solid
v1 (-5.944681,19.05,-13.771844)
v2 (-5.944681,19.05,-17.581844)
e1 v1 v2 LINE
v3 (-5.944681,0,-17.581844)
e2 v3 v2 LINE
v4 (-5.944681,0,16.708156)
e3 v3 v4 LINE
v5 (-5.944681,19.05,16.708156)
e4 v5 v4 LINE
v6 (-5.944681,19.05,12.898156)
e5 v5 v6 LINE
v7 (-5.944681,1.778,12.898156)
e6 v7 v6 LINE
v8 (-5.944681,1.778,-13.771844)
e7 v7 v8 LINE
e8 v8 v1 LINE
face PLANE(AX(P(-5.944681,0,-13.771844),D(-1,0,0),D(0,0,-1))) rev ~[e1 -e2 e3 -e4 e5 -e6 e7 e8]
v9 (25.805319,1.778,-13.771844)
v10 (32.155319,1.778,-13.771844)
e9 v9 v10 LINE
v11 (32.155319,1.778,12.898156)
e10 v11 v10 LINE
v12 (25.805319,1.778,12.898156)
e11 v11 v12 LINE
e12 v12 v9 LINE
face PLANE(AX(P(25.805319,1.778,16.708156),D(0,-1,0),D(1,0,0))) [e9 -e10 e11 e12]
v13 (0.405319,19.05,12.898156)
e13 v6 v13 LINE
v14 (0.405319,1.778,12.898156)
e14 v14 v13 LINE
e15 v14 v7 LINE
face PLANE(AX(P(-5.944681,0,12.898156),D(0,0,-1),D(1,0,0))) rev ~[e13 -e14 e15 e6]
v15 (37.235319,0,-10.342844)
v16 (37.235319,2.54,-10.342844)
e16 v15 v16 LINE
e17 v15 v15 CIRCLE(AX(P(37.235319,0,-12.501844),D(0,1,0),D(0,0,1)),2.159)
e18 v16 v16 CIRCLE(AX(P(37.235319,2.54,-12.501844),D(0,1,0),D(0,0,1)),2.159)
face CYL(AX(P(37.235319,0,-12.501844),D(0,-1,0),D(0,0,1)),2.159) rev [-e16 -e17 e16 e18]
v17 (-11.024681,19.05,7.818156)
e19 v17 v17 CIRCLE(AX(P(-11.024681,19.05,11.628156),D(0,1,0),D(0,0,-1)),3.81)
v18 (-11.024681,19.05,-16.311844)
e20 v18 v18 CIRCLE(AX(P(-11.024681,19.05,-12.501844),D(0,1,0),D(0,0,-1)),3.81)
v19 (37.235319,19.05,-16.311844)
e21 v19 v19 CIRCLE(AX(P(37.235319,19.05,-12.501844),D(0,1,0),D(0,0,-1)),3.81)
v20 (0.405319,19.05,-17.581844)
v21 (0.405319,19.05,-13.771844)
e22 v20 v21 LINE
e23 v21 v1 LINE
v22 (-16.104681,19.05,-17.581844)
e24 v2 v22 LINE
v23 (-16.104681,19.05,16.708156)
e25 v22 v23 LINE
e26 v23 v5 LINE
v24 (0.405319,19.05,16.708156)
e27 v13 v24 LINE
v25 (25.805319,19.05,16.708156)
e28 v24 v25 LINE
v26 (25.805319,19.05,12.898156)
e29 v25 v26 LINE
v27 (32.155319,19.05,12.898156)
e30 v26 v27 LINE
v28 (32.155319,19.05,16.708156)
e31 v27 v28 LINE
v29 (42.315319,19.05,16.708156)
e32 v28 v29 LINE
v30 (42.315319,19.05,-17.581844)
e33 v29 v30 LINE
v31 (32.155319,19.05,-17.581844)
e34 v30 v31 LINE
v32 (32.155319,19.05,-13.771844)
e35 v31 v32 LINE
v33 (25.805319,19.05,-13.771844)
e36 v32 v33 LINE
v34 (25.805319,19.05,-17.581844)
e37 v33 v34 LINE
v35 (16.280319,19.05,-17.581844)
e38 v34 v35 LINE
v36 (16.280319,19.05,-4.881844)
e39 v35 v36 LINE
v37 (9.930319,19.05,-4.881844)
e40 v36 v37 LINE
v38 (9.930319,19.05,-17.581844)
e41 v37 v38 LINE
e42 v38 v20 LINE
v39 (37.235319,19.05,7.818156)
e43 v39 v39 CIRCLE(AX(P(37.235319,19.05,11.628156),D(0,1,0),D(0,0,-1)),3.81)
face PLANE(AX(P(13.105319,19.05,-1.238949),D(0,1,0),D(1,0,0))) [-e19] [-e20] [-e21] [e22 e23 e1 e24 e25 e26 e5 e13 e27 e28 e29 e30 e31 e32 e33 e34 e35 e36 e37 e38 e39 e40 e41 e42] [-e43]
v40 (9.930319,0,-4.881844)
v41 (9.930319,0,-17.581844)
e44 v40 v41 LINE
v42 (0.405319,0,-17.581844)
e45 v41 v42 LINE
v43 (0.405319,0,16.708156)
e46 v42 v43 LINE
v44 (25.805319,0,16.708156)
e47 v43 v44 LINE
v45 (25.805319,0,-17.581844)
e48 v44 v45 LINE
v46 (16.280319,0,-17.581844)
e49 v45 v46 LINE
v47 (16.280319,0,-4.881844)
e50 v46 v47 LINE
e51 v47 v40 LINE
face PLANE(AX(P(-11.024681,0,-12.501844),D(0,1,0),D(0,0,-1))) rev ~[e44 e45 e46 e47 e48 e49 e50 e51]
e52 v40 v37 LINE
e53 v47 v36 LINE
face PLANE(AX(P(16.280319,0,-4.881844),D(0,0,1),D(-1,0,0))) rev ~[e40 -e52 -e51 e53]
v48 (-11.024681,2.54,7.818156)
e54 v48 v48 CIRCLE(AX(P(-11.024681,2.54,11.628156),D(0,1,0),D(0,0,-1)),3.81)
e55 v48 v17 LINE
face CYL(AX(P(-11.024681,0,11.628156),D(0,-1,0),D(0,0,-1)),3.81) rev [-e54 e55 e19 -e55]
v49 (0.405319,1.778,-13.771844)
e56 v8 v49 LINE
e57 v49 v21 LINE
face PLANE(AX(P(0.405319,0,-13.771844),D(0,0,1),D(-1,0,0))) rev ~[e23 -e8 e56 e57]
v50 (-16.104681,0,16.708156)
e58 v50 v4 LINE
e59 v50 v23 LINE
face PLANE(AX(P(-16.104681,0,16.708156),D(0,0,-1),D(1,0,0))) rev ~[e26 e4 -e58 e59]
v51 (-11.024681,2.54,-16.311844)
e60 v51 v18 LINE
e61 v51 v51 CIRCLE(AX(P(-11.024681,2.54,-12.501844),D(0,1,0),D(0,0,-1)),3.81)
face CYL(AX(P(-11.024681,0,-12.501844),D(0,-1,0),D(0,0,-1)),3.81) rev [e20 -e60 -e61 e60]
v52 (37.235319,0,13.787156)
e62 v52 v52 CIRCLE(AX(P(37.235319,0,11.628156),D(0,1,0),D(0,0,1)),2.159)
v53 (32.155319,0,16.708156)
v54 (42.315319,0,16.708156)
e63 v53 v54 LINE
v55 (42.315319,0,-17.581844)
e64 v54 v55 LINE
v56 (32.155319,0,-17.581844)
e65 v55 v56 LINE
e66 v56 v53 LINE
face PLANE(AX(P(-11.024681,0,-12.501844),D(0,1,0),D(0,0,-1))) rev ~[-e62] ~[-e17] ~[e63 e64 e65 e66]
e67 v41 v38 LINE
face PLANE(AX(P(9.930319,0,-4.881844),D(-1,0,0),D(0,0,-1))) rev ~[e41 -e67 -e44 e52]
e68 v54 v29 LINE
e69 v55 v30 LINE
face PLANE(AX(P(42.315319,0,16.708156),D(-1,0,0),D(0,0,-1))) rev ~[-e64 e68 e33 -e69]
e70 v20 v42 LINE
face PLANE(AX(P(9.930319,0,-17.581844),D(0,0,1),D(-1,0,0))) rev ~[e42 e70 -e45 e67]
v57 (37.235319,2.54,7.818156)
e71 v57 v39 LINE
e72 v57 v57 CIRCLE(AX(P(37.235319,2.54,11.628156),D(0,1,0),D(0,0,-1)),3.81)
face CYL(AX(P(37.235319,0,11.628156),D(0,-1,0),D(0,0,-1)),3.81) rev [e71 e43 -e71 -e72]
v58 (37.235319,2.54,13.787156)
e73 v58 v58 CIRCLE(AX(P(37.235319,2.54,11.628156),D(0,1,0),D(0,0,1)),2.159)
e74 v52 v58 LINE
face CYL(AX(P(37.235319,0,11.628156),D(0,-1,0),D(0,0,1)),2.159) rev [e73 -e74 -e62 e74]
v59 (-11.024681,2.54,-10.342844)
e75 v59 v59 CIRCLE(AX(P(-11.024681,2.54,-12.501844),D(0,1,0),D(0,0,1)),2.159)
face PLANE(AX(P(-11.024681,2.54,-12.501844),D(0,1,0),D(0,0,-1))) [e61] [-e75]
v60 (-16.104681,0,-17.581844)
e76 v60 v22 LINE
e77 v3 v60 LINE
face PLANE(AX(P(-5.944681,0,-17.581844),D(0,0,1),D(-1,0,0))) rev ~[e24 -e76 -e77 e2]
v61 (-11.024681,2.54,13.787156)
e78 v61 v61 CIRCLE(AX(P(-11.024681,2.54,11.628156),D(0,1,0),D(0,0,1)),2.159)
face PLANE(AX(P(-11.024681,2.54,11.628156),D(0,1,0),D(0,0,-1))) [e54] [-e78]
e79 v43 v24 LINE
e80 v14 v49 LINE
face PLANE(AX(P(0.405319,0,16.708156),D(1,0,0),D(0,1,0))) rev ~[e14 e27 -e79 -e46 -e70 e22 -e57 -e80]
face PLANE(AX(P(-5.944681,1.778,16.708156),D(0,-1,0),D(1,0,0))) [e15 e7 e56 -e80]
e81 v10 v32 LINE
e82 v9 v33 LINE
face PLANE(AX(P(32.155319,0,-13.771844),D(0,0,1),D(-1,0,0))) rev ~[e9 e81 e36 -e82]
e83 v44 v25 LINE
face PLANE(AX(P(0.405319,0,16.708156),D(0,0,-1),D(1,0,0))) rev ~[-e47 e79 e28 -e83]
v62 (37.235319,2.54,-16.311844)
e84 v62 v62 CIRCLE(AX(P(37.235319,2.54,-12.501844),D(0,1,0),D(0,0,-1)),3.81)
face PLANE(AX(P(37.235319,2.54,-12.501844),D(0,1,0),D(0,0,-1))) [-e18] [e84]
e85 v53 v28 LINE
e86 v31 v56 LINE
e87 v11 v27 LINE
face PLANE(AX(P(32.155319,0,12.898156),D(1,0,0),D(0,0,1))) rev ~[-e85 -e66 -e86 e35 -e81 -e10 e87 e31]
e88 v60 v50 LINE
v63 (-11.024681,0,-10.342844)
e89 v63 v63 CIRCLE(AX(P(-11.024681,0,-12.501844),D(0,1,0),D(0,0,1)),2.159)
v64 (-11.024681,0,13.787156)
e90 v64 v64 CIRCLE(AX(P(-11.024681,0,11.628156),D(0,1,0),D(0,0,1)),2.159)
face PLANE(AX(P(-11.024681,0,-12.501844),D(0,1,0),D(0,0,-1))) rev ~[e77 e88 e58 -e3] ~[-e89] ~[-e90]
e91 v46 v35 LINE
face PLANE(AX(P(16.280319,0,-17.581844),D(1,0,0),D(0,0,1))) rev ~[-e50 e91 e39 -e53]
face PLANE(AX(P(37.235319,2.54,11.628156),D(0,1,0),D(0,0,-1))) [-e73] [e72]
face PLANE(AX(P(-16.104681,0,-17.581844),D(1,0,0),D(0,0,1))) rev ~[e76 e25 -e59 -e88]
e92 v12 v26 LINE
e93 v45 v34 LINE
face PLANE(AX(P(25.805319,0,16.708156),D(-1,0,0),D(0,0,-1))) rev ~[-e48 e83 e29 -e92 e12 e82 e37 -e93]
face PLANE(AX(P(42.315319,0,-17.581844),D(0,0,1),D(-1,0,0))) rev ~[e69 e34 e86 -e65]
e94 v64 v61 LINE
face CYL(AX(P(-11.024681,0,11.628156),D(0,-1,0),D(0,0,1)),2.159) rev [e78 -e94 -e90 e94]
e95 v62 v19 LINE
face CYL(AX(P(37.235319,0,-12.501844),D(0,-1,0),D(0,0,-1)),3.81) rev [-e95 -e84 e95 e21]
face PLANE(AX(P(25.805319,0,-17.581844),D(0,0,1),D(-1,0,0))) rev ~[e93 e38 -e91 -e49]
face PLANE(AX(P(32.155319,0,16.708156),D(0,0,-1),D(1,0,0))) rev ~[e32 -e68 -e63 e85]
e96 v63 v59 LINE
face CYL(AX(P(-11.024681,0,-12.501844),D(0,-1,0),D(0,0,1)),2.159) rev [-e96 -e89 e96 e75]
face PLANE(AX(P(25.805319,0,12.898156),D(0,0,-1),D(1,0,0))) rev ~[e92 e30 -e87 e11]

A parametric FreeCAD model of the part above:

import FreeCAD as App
import Part
import Sketcher
from FreeCAD import Vector
Q = App.Units.Quantity


def add_polygon(sketch, points):
    """Adds a closed chain of lines whose ends are joined by coincident constraints."""
    first, n = sketch.GeometryCount, len(points)
    for a, b in zip(points, points[1:] + points[:1]):
        sketch.addGeometry(Part.LineSegment(App.Vector(*a, 0), App.Vector(*b, 0)), False)
    for i in range(n):
        sketch.addConstraint(Sketcher.Constraint("Coincident", first + i, 2, first + (i + 1) % n, 1))

doc = App.newDocument("Part")
body = doc.addObject("PartDesign::Body", "Body")

sketch1 = body.newObject("Sketcher::SketchObject", "Sketch")
sketch1.AttachmentSupport = (doc.getObject("XZ_Plane"), [""])
sketch1.MapMode = "FlatFace"
add_polygon(sketch1, [(-5.9, -17.6), (-16.1, -17.6), (-16.1, 16.7), (-5.9, 16.7), (-5.9, 12.9), (0.4, 12.9), (0.4, 16.7), (25.8, 16.7), (25.8, 12.9), (32.2, 12.9), (32.2, 16.7), (42.3, 16.7), (42.3, -17.6), (32.2, -17.6), (32.2, -13.8), (25.8, -13.8), (25.8, -17.6), (16.3, -17.6), (16.3, -4.9), (9.9, -4.9), (9.9, -17.6), (0.4, -17.6), (0.4, -13.8), (-5.9, -13.8)])
sketch1.addGeometry(Part.Circle(Vector(-11, 11.6, 0), Vector(0, 0, 1), 3.8), False)
sketch1.addGeometry(Part.Circle(Vector(37.2, 11.6, 0), Vector(0, 0, 1), 3.8), False)
sketch1.addGeometry(Part.Circle(Vector(-11, -12.5, 0), Vector(0, 0, 1), 3.8), False)
sketch1.addGeometry(Part.Circle(Vector(37.2, -12.5, 0), Vector(0, 0, 1), 3.8), False)
sketch1.addConstraint(Sketcher.Constraint("Horizontal", 0))
sketch1.addConstraint(Sketcher.Constraint("Vertical", 1))
sketch1.addConstraint(Sketcher.Constraint("Horizontal", 2))
sketch1.addConstraint(Sketcher.Constraint("Vertical", 3))
sketch1.addConstraint(Sketcher.Constraint("Horizontal", 4))
sketch1.addConstraint(Sketcher.Constraint("Vertical", 5))
sketch1.addConstraint(Sketcher.Constraint("Horizontal", 6))
sketch1.addConstraint(Sketcher.Constraint("Vertical", 7))
sketch1.addConstraint(Sketcher.Constraint("Horizontal", 8))
sketch1.addConstraint(Sketcher.Constraint("Vertical", 9))
sketch1.addConstraint(Sketcher.Constraint("Horizontal", 10))
sketch1.addConstraint(Sketcher.Constraint("Vertical", 11))
sketch1.addConstraint(Sketcher.Constraint("Horizontal", 12))
sketch1.addConstraint(Sketcher.Constraint("Vertical", 13))
sketch1.addConstraint(Sketcher.Constraint("Horizontal", 14))
sketch1.addConstraint(Sketcher.Constraint("Vertical", 15))
sketch1.addConstraint(Sketcher.Constraint("Horizontal", 16))
sketch1.addConstraint(Sketcher.Constraint("Vertical", 17))
sketch1.addConstraint(Sketcher.Constraint("Horizontal", 18))
sketch1.addConstraint(Sketcher.Constraint("Vertical", 19))
sketch1.addConstraint(Sketcher.Constraint("Horizontal", 20))
sketch1.addConstraint(Sketcher.Constraint("Vertical", 21))
sketch1.addConstraint(Sketcher.Constraint("Horizontal", 22))
sketch1.addConstraint(Sketcher.Constraint("Vertical", 23))
sketch1.addConstraint(Sketcher.Constraint("Equal", 24, 25))
sketch1.addConstraint(Sketcher.Constraint("Equal", 25, 26))
sketch1.addConstraint(Sketcher.Constraint("Equal", 26, 27))
sketch1.addConstraint(Sketcher.Constraint("Horizontal", 24, 3, 25, 3))
sketch1.addConstraint(Sketcher.Constraint("Horizontal", 26, 3, 27, 3))
sketch1.addConstraint(Sketcher.Constraint("Horizontal", 2, 2, 5, 2))
sketch1.addConstraint(Sketcher.Constraint("Horizontal", 4, 2, 7, 2))
sketch1.addConstraint(Sketcher.Constraint("Horizontal", 6, 2, 9, 2))
sketch1.addConstraint(Sketcher.Constraint("Horizontal", 0, 2, 11, 2))
sketch1.addConstraint(Sketcher.Constraint("Horizontal", 12, 2, 15, 2))
sketch1.addConstraint(Sketcher.Constraint("Horizontal", 16, 2, 19, 2))
sketch1.addConstraint(Sketcher.Constraint("Horizontal", 14, 2, 21, 2))
sketch1.addConstraint(Sketcher.Constraint("Vertical", 24, 3, 26, 3))
sketch1.addConstraint(Sketcher.Constraint("Vertical", 25, 3, 27, 3))
sketch1.addConstraint(Sketcher.Constraint("Vertical", 9, 2, 12, 2))
sketch1.addConstraint(Sketcher.Constraint("Vertical", 7, 2, 14, 2))
sketch1.addConstraint(Sketcher.Constraint("Vertical", 5, 2, 20, 2))
sketch1.addConstraint(Sketcher.Constraint("Vertical", 3, 2, 22, 2))
sketch1.addConstraint(Sketcher.Constraint("Equal", 4, 8))
sketch1.addConstraint(Sketcher.Constraint("Equal", 2, 10))
sketch1.addConstraint(Sketcher.Constraint("Equal", 14, 18))
sketch1.addConstraint(Sketcher.Constraint("Equal", 16, 20))
sketch1.addConstraint(Sketcher.Constraint("Equal", 9, 13))
sketch1.addConstraint(Sketcher.Constraint("Diameter", 24, Q("0.3 in")))
sketch1.addConstraint(Sketcher.Constraint("DistanceX", 6, 1, 6, 2, Q("1 in")))
sketch1.addConstraint(Sketcher.Constraint("DistanceX", 0, 2, 0, 1, Q("0.4 in")))
sketch1.addConstraint(Sketcher.Constraint("DistanceY", 17, 1, 17, 2, Q("0.5 in")))
sketch1.addConstraint(Sketcher.Constraint("DistanceY", 26, 3, 3, 2, Q("1 in")))
sketch1.addConstraint(Sketcher.Constraint("DistanceY", 13, 2, 25, 3, Q("1 in")))
sketch1.addConstraint(Sketcher.Constraint("DistanceX", 4, 1, 4, 2, Q("0.25 in")))
sketch1.addConstraint(Sketcher.Constraint("DistanceY", 1, 1, 1, 2, Q("1.35 in")))
sketch1.addConstraint(Sketcher.Constraint("DistanceY", 3, 2, 3, 1, Q("0.15 in")))
sketch1.addConstraint(Sketcher.Constraint("DistanceX", 24, 3, 25, 3, Q("1.9 in")))
sketch1.addConstraint(Sketcher.Constraint("DistanceX", 0, 2, 26, 3, Q("0.2 in")))
sketch1.addConstraint(Sketcher.Constraint("DistanceX", 24, 3, -1, 1, Q("11.024681 mm")))
sketch1.addConstraint(Sketcher.Constraint("DistanceY", -1, 1, 24, 3, Q("11.628156 mm")))
pad1 = body.newObject("PartDesign::Pad", "Pad")
pad1.Profile = sketch1
pad1.Length = Q("0.75 in")
pad1.Reversed = True

sketch2 = body.newObject("Sketcher::SketchObject", "Sketch001")
sketch2.AttachmentSupport = (doc.getObject("XZ_Plane"), [""])
sketch2.MapMode = "FlatFace"
sketch2.addGeometry(Part.Circle(Vector(-11, -12.5, 0), Vector(0, 0, 1), 3.8), False)
sketch2.addGeometry(Part.Circle(Vector(-11, -12.5, 0), Vector(0, 0, 1), 2.2), False)
sketch2.addGeometry(Part.Circle(Vector(-11, 11.6, 0), Vector(0, 0, 1), 3.8), False)
sketch2.addGeometry(Part.Circle(Vector(-11, 11.6, 0), Vector(0, 0, 1), 2.2), False)
sketch2.addGeometry(Part.Circle(Vector(37.2, -12.5, 0), Vector(0, 0, 1), 3.8), False)
sketch2.addGeometry(Part.Circle(Vector(37.2, -12.5, 0), Vector(0, 0, 1), 2.2), False)
sketch2.addGeometry(Part.Circle(Vector(37.2, 11.6, 0), Vector(0, 0, 1), 3.8), False)
sketch2.addGeometry(Part.Circle(Vector(37.2, 11.6, 0), Vector(0, 0, 1), 2.2), False)
sketch2.addConstraint(Sketcher.Constraint("Coincident", 1, 3, 0, 3))
sketch2.addConstraint(Sketcher.Constraint("Coincident", 3, 3, 2, 3))
sketch2.addConstraint(Sketcher.Constraint("Coincident", 5, 3, 4, 3))
sketch2.addConstraint(Sketcher.Constraint("Coincident", 7, 3, 6, 3))
sketch2.addConstraint(Sketcher.Constraint("Equal", 0, 2))
sketch2.addConstraint(Sketcher.Constraint("Equal", 1, 3))
sketch2.addConstraint(Sketcher.Constraint("Equal", 2, 4))
sketch2.addConstraint(Sketcher.Constraint("Equal", 3, 5))
sketch2.addConstraint(Sketcher.Constraint("Equal", 4, 6))
sketch2.addConstraint(Sketcher.Constraint("Equal", 5, 7))
sketch2.addConstraint(Sketcher.Constraint("Horizontal", 1, 3, 4, 3))
sketch2.addConstraint(Sketcher.Constraint("Horizontal", 3, 3, 6, 3))
sketch2.addConstraint(Sketcher.Constraint("Vertical", 1, 3, 2, 3))
sketch2.addConstraint(Sketcher.Constraint("Vertical", 5, 3, 6, 3))
sketch2.addConstraint(Sketcher.Constraint("Diameter", 0, Q("0.3 in")))
sketch2.addConstraint(Sketcher.Constraint("Diameter", 1, Q("0.17 in")))
sketch2.addConstraint(Sketcher.Constraint("DistanceX", 0, 3, 4, 3, Q("1.9 in")))
sketch2.addConstraint(Sketcher.Constraint("DistanceY", 0, 3, 2, 3, Q("0.95 in")))
sketch2.addConstraint(Sketcher.Constraint("DistanceX", 0, 3, -1, 1, Q("11.024681 mm")))
sketch2.addConstraint(Sketcher.Constraint("DistanceY", 0, 3, -1, 1, Q("12.501844 mm")))
pad2 = body.newObject("PartDesign::Pad", "Pad001")
pad2.Profile = sketch2
pad2.Length = Q("0.1 in")
pad2.Reversed = True

sketch3 = body.newObject("Sketcher::SketchObject", "Sketch002")
sketch3.AttachmentSupport = (doc.getObject("XY_Plane"), [""])
sketch3.MapMode = "FlatFace"
sketch3.AttachmentOffset = App.Placement(Vector(0, 0, 16.708156), App.Rotation())
add_polygon(sketch3, [(-5.9, 1.8), (-5.9, 0), (0.4, 0), (0.4, 1.8)])
add_polygon(sketch3, [(25.8, 1.8), (25.8, 0), (32.2, 0), (32.2, 1.8)])
sketch3.addConstraint(Sketcher.Constraint("Vertical", 0))
sketch3.addConstraint(Sketcher.Constraint("Horizontal", 1))
sketch3.addConstraint(Sketcher.Constraint("Vertical", 2))
sketch3.addConstraint(Sketcher.Constraint("Horizontal", 3))
sketch3.addConstraint(Sketcher.Constraint("Vertical", 4))
sketch3.addConstraint(Sketcher.Constraint("Horizontal", 5))
sketch3.addConstraint(Sketcher.Constraint("Vertical", 6))
sketch3.addConstraint(Sketcher.Constraint("Horizontal", 7))
sketch3.addConstraint(Sketcher.Constraint("PointOnObject", 0, 2, -1))
sketch3.addConstraint(Sketcher.Constraint("PointOnObject", 4, 2, -1))
sketch3.addConstraint(Sketcher.Constraint("Horizontal", 3, 2, 6, 2))
sketch3.addConstraint(Sketcher.Constraint("Equal", 3, 5))
sketch3.addConstraint(Sketcher.Constraint("DistanceX", 1, 2, 4, 2, Q("1 in")))
sketch3.addConstraint(Sketcher.Constraint("DistanceX", 1, 1, 1, 2, Q("0.25 in")))
sketch3.addConstraint(Sketcher.Constraint("DistanceY", 0, 2, 0, 1, Q("0.07 in")))
sketch3.addConstraint(Sketcher.Constraint("DistanceX", 0, 2, -1, 1, Q("5.944681 mm")))
pocket1 = body.newObject("PartDesign::Pocket", "Pocket")
pocket1.Profile = sketch3
pocket1.Type = "ThroughAll"

doc.recompute()
